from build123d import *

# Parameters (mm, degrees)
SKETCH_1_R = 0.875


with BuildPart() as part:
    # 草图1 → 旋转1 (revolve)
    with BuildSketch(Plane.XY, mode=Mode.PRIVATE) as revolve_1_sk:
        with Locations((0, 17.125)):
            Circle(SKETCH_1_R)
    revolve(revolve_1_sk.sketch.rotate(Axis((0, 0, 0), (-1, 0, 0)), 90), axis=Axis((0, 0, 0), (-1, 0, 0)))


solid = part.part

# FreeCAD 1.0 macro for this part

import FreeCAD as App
import Part
import Sketcher

doc = App.newDocument("Part")
body = doc.addObject("PartDesign::Body", "Body")

sketch1 = body.newObject("Sketcher::SketchObject", "Sketch")
sketch1.AttachmentSupport = (doc.getObject("XY_Plane"), [""])
sketch1.MapMode = "FlatFace"
sketch1.addGeometry(Part.Circle(App.Vector(0, 17.1, 0), App.Vector(0, 0, 1), 0.9), False)
sketch1.addConstraint([
    Sketcher.Constraint("PointOnObject", 0, 3, -2),
    Sketcher.Constraint("Diameter", 0, 1.75),
    Sketcher.Constraint("DistanceY", -1, 1, 0, 3, 17.125),
])
revolution = body.newObject("PartDesign::Revolution", "Revolution")
revolution.Profile = sketch1
revolution.ReferenceAxis = (sketch1, ["H_Axis"])
revolution.Angle = 360

doc.recompute()
